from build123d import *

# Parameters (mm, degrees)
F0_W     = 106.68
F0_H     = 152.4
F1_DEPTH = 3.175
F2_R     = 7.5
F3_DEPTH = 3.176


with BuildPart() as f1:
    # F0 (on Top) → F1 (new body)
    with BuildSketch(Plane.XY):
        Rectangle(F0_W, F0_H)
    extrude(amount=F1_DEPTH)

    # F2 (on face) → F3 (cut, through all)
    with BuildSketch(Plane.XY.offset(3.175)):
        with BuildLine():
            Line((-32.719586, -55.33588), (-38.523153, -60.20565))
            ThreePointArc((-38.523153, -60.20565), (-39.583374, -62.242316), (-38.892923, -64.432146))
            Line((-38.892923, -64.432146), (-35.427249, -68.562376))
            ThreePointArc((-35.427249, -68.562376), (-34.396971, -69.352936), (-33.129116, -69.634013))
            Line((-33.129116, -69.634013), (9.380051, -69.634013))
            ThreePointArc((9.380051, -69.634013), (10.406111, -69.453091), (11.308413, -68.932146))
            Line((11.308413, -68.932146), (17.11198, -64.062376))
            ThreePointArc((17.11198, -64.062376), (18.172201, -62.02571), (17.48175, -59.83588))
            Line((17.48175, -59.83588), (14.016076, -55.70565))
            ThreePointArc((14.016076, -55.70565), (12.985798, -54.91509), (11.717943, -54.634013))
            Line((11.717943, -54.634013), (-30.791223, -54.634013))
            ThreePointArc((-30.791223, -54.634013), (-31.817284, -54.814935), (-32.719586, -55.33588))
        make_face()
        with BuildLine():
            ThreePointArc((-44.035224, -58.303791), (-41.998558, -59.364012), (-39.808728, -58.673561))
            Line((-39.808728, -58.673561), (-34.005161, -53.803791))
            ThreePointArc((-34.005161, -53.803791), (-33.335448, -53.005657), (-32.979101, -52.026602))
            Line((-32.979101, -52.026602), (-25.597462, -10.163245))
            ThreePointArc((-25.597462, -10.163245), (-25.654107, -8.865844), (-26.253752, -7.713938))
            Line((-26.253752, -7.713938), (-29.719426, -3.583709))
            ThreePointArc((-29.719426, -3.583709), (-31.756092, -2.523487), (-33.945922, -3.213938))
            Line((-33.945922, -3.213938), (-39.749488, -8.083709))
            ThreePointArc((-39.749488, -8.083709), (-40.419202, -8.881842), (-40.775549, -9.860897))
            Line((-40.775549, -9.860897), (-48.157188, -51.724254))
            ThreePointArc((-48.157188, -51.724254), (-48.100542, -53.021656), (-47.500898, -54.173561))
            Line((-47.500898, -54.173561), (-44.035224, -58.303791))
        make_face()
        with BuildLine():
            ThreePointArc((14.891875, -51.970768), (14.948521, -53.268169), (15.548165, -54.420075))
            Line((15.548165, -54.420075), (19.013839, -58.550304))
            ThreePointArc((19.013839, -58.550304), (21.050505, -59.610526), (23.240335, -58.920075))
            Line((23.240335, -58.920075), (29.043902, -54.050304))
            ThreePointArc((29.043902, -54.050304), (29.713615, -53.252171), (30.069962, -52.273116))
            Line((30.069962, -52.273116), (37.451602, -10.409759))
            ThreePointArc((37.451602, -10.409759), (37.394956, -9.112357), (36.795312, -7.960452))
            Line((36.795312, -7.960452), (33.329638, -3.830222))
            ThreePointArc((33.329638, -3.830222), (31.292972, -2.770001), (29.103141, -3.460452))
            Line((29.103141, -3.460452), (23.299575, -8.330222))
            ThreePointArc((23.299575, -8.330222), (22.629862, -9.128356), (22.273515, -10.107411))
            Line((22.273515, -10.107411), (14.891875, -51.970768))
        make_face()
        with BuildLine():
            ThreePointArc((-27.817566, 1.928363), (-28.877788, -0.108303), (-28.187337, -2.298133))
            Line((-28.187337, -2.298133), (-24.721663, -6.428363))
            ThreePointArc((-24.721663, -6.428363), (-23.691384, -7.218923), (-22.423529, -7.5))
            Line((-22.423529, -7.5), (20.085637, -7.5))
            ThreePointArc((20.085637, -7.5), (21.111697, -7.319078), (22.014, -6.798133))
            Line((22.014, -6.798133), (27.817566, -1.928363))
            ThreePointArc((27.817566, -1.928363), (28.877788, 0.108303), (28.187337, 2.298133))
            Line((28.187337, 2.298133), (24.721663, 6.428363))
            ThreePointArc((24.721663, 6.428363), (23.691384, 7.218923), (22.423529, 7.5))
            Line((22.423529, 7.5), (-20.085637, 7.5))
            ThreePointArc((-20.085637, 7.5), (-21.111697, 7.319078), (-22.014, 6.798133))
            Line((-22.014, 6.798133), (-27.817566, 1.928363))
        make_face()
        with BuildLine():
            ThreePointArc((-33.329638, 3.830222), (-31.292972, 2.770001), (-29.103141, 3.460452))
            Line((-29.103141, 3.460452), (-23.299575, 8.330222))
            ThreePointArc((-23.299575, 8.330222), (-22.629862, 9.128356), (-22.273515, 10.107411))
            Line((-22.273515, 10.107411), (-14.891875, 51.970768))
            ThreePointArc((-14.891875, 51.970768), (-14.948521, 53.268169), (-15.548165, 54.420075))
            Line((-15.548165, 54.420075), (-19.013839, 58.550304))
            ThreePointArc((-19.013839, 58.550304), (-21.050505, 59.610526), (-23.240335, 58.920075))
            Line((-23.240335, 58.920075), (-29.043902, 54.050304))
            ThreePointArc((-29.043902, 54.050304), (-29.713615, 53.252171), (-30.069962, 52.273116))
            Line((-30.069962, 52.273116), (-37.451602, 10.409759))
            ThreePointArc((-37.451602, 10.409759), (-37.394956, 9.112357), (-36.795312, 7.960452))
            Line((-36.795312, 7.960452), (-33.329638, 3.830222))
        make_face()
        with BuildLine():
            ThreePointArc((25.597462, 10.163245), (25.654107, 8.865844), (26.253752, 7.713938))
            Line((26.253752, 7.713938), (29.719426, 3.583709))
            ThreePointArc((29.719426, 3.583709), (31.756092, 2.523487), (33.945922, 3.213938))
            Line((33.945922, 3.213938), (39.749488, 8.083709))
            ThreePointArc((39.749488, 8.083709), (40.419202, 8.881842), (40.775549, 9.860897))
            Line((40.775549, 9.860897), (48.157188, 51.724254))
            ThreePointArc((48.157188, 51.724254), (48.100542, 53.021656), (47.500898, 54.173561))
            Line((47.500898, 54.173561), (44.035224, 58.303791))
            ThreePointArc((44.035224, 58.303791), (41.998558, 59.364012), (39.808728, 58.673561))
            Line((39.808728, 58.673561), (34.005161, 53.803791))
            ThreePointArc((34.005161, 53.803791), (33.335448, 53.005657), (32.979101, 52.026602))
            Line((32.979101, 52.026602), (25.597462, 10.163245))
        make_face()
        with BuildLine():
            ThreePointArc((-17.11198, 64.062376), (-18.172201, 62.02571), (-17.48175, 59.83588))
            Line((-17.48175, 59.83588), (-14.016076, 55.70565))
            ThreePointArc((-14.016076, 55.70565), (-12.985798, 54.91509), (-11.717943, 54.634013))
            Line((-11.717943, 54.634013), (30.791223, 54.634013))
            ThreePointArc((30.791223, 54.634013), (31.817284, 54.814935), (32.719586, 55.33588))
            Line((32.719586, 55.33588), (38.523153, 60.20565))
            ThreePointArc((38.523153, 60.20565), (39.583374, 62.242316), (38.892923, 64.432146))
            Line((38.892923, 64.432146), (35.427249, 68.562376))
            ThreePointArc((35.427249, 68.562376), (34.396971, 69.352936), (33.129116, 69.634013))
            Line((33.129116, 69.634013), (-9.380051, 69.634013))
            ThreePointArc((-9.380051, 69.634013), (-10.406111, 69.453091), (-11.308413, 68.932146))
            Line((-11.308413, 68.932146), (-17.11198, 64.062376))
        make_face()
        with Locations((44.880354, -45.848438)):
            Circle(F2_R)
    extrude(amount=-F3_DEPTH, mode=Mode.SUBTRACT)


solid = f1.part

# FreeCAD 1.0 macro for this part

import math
import FreeCAD as App
import Part
import Sketcher

V = App.Vector
Q = App.Units.Quantity


def add_polygon(sketch, points):
    """Adds a closed chain of lines whose ends are joined by coincident constraints."""
    first, n = sketch.GeometryCount, len(points)
    for a, b in zip(points, points[1:] + points[:1]):
        sketch.addGeometry(Part.LineSegment(App.Vector(*a, 0), App.Vector(*b, 0)), False)
    for i in range(n):
        sketch.addConstraint(Sketcher.Constraint("Coincident", first + i, 2, first + (i + 1) % n, 1))

doc = App.newDocument("Part")
params = doc.addObject("Spreadsheet::Sheet", "Params")
for row, (alias, value) in enumerate([
    ("sketch1_height", "152.4 mm"),
    ("sketch1_width", "106.68 mm"),
    ("pad1_length", "3.175 mm"),
    ("sketch2_diameter", "15 mm"),
    ("sketch2_radius", "3 mm"),
], start=1):
    params.set(f"A{row}", alias)
    params.set(f"B{row}", "=" + value)
    params.setAlias(f"B{row}", alias)

body = doc.addObject("PartDesign::Body", "Body")

sketch1 = body.newObject("Sketcher::SketchObject", "Sketch")
sketch1.AttachmentSupport = (doc.getObject("XY_Plane"), [""])
sketch1.MapMode = "FlatFace"
add_polygon(sketch1, [(-53, 76), (-53, -76), (53, -76), (53, 76)])
sketch1.addConstraint(Sketcher.Constraint("Vertical", 0))
sketch1.addConstraint(Sketcher.Constraint("Horizontal", 1))
sketch1.addConstraint(Sketcher.Constraint("Vertical", 2))
sketch1.addConstraint(Sketcher.Constraint("Horizontal", 3))
sketch1.addConstraint(Sketcher.Constraint("Symmetric", 0, 2, 2, 2, -1, 1))
sketch1.addConstraint(Sketcher.Constraint("DistanceY", 0, 2, 0, 1, 152.4))
sketch1.addConstraint(Sketcher.Constraint("DistanceX", 1, 1, 1, 2, 106.68))
sketch1.setExpression("Constraints[9]", "Params.sketch1_height")
sketch1.setExpression("Constraints[10]", "Params.sketch1_width")
pad1 = body.newObject("PartDesign::Pad", "Pad")
pad1.Profile = sketch1
pad1.setExpression("Length", "Params.pad1_length")

sketch2 = body.newObject("Sketcher::SketchObject", "Sketch001")
sketch2.AttachmentSupport = (doc.getObject("XY_Plane"), [""])
sketch2.MapMode = "FlatFace"
sketch2.AttachmentOffset = App.Placement(V(0, 0, 3.175), App.Rotation())
sketch2.addGeometry(Part.LineSegment(V(-32.7, -55.3, 0), V(-38.5, -60.2, 0)), False)
sketch2.addGeometry(Part.ArcOfCircle(Part.Circle(V(-36.6, -62.5, 0), V(0, 0, 1), 3), math.radians(130), math.radians(220)), False)
sketch2.addGeometry(Part.LineSegment(V(-38.9, -64.4, 0), V(-35.4, -68.6, 0)), False)
sketch2.addGeometry(Part.ArcOfCircle(Part.Circle(V(-33.1, -66.6, 0), V(0, 0, 1), 3), math.radians(-140), math.radians(-90)), False)
sketch2.addGeometry(Part.LineSegment(V(-33.1, -69.6, 0), V(9.4, -69.6, 0)), False)
sketch2.addGeometry(Part.ArcOfCircle(Part.Circle(V(9.4, -66.6, 0), V(0, 0, 1), 3), math.radians(-90), math.radians(-50)), False)
sketch2.addGeometry(Part.LineSegment(V(11.3, -68.9, 0), V(17.1, -64.1, 0)), False)
sketch2.addGeometry(Part.ArcOfCircle(Part.Circle(V(15.2, -61.8, 0), V(0, 0, 1), 3), math.radians(-50), math.radians(40)), False)
sketch2.addGeometry(Part.LineSegment(V(17.5, -59.8, 0), V(14, -55.7, 0)), False)
sketch2.addGeometry(Part.ArcOfCircle(Part.Circle(V(11.7, -57.6, 0), V(0, 0, 1), 3), math.radians(40), math.radians(90)), False)
sketch2.addGeometry(Part.LineSegment(V(11.7, -54.6, 0), V(-30.8, -54.6, 0)), False)
sketch2.addGeometry(Part.ArcOfCircle(Part.Circle(V(-30.8, -57.6, 0), V(0, 0, 1), 3), math.radians(90), math.radians(130)), False)
sketch2.addGeometry(Part.ArcOfCircle(Part.Circle(V(-41.7, -56.4, 0), V(0, 0, 1), 3), math.radians(-140), math.radians(-50)), False)
sketch2.addGeometry(Part.LineSegment(V(-39.8, -58.7, 0), V(-34, -53.8, 0)), False)
sketch2.addGeometry(Part.ArcOfCircle(Part.Circle(V(-35.9, -51.5, 0), V(0, 0, 1), 3), math.radians(-50), math.radians(-10)), False)
sketch2.addGeometry(Part.LineSegment(V(-33, -52, 0), V(-25.6, -10.2, 0)), False)
sketch2.addGeometry(Part.ArcOfCircle(Part.Circle(V(-28.6, -9.6, 0), V(0, 0, 1), 3), math.radians(-10), math.radians(40)), False)
sketch2.addGeometry(Part.LineSegment(V(-26.3, -7.7, 0), V(-29.7, -3.6, 0)), False)
sketch2.addGeometry(Part.ArcOfCircle(Part.Circle(V(-32, -5.5, 0), V(0, 0, 1), 3), math.radians(40), math.radians(130)), False)
sketch2.addGeometry(Part.LineSegment(V(-33.9, -3.2, 0), V(-39.7, -8.1, 0)), False)
sketch2.addGeometry(Part.ArcOfCircle(Part.Circle(V(-37.8, -10.4, 0), V(0, 0, 1), 3), math.radians(130), math.radians(170)), False)
sketch2.addGeometry(Part.LineSegment(V(-40.8, -9.9, 0), V(-48.2, -51.7, 0)), False)
sketch2.addGeometry(Part.ArcOfCircle(Part.Circle(V(-45.2, -52.2, 0), V(0, 0, 1), 3), math.radians(170), math.radians(220)), False)
sketch2.addGeometry(Part.LineSegment(V(-47.5, -54.2, 0), V(-44, -58.3, 0)), False)
sketch2.addGeometry(Part.ArcOfCircle(Part.Circle(V(17.8, -52.5, 0), V(0, 0, 1), 3), math.radians(170), math.radians(220)), False)
sketch2.addGeometry(Part.LineSegment(V(15.5, -54.4, 0), V(19, -58.6, 0)), False)
sketch2.addGeometry(Part.ArcOfCircle(Part.Circle(V(21.3, -56.6, 0), V(0, 0, 1), 3), math.radians(-140), math.radians(-50)), False)
sketch2.addGeometry(Part.LineSegment(V(23.2, -58.9, 0), V(29, -54.1, 0)), False)
sketch2.addGeometry(Part.ArcOfCircle(Part.Circle(V(27.1, -51.8, 0), V(0, 0, 1), 3), math.radians(-50), math.radians(-10)), False)
sketch2.addGeometry(Part.LineSegment(V(30.1, -52.3, 0), V(37.5, -10.4, 0)), False)
sketch2.addGeometry(Part.ArcOfCircle(Part.Circle(V(34.5, -9.9, 0), V(0, 0, 1), 3), math.radians(-10), math.radians(40)), False)
sketch2.addGeometry(Part.LineSegment(V(36.8, -8, 0), V(33.3, -3.8, 0)), False)
sketch2.addGeometry(Part.ArcOfCircle(Part.Circle(V(31, -5.8, 0), V(0, 0, 1), 3), math.radians(40), math.radians(130)), False)
sketch2.addGeometry(Part.LineSegment(V(29.1, -3.5, 0), V(23.3, -8.3, 0)), False)
sketch2.addGeometry(Part.ArcOfCircle(Part.Circle(V(25.2, -10.6, 0), V(0, 0, 1), 3), math.radians(130), math.radians(170)), False)
sketch2.addGeometry(Part.LineSegment(V(22.3, -10.1, 0), V(14.9, -52, 0)), False)
sketch2.addGeometry(Part.ArcOfCircle(Part.Circle(V(-25.9, -0.4, 0), V(0, 0, 1), 3), math.radians(130), math.radians(220)), False)
sketch2.addGeometry(Part.LineSegment(V(-28.2, -2.3, 0), V(-24.7, -6.4, 0)), False)
sketch2.addGeometry(Part.ArcOfCircle(Part.Circle(V(-22.4, -4.5, 0), V(0, 0, 1), 3), math.radians(-140), math.radians(-90)), False)
sketch2.addGeometry(Part.LineSegment(V(-22.4, -7.5, 0), V(20.1, -7.5, 0)), False)
sketch2.addGeometry(Part.ArcOfCircle(Part.Circle(V(20.1, -4.5, 0), V(0, 0, 1), 3), math.radians(-90), math.radians(-50)), False)
sketch2.addGeometry(Part.LineSegment(V(22, -6.8, 0), V(27.8, -1.9, 0)), False)
sketch2.addGeometry(Part.ArcOfCircle(Part.Circle(V(25.9, 0.4, 0), V(0, 0, 1), 3), math.radians(-50), math.radians(40)), False)
sketch2.addGeometry(Part.LineSegment(V(28.2, 2.3, 0), V(24.7, 6.4, 0)), False)
sketch2.addGeometry(Part.ArcOfCircle(Part.Circle(V(22.4, 4.5, 0), V(0, 0, 1), 3), math.radians(40), math.radians(90)), False)
sketch2.addGeometry(Part.LineSegment(V(22.4, 7.5, 0), V(-20.1, 7.5, 0)), False)
sketch2.addGeometry(Part.ArcOfCircle(Part.Circle(V(-20.1, 4.5, 0), V(0, 0, 1), 3), math.radians(90), math.radians(130)), False)
sketch2.addGeometry(Part.LineSegment(V(-22, 6.8, 0), V(-27.8, 1.9, 0)), False)
sketch2.addGeometry(Part.ArcOfCircle(Part.Circle(V(-31, 5.8, 0), V(0, 0, 1), 3), math.radians(-140), math.radians(-50)), False)
sketch2.addGeometry(Part.LineSegment(V(-29.1, 3.5, 0), V(-23.3, 8.3, 0)), False)
sketch2.addGeometry(Part.ArcOfCircle(Part.Circle(V(-25.2, 10.6, 0), V(0, 0, 1), 3), math.radians(-50), math.radians(-10)), False)
sketch2.addGeometry(Part.LineSegment(V(-22.3, 10.1, 0), V(-14.9, 52, 0)), False)
sketch2.addGeometry(Part.ArcOfCircle(Part.Circle(V(-17.8, 52.5, 0), V(0, 0, 1), 3), math.radians(-10), math.radians(40)), False)
sketch2.addGeometry(Part.LineSegment(V(-15.5, 54.4, 0), V(-19, 58.6, 0)), False)
sketch2.addGeometry(Part.ArcOfCircle(Part.Circle(V(-21.3, 56.6, 0), V(0, 0, 1), 3), math.radians(40), math.radians(130)), False)
sketch2.addGeometry(Part.LineSegment(V(-23.2, 58.9, 0), V(-29, 54.1, 0)), False)
sketch2.addGeometry(Part.ArcOfCircle(Part.Circle(V(-27.1, 51.8, 0), V(0, 0, 1), 3), math.radians(130), math.radians(170)), False)
sketch2.addGeometry(Part.LineSegment(V(-30.1, 52.3, 0), V(-37.5, 10.4, 0)), False)
sketch2.addGeometry(Part.ArcOfCircle(Part.Circle(V(-34.5, 9.9, 0), V(0, 0, 1), 3), math.radians(170), math.radians(220)), False)
sketch2.addGeometry(Part.LineSegment(V(-36.8, 8, 0), V(-33.3, 3.8, 0)), False)
sketch2.addGeometry(Part.ArcOfCircle(Part.Circle(V(28.6, 9.6, 0), V(0, 0, 1), 3), math.radians(170), math.radians(220)), False)
sketch2.addGeometry(Part.LineSegment(V(26.3, 7.7, 0), V(29.7, 3.6, 0)), False)
sketch2.addGeometry(Part.ArcOfCircle(Part.Circle(V(32, 5.5, 0), V(0, 0, 1), 3), math.radians(-140), math.radians(-50)), False)
sketch2.addGeometry(Part.LineSegment(V(33.9, 3.2, 0), V(39.7, 8.1, 0)), False)
sketch2.addGeometry(Part.ArcOfCircle(Part.Circle(V(37.8, 10.4, 0), V(0, 0, 1), 3), math.radians(-50), math.radians(-10)), False)
sketch2.addGeometry(Part.LineSegment(V(40.8, 9.9, 0), V(48.2, 51.7, 0)), False)
sketch2.addGeometry(Part.ArcOfCircle(Part.Circle(V(45.2, 52.2, 0), V(0, 0, 1), 3), math.radians(-10), math.radians(40)), False)
sketch2.addGeometry(Part.LineSegment(V(47.5, 54.2, 0), V(44, 58.3, 0)), False)
sketch2.addGeometry(Part.ArcOfCircle(Part.Circle(V(41.7, 56.4, 0), V(0, 0, 1), 3), math.radians(40), math.radians(130)), False)
sketch2.addGeometry(Part.LineSegment(V(39.8, 58.7, 0), V(34, 53.8, 0)), False)
sketch2.addGeometry(Part.ArcOfCircle(Part.Circle(V(35.9, 51.5, 0), V(0, 0, 1), 3), math.radians(130), math.radians(170)), False)
sketch2.addGeometry(Part.LineSegment(V(33, 52, 0), V(25.6, 10.2, 0)), False)
sketch2.addGeometry(Part.ArcOfCircle(Part.Circle(V(-15.2, 61.8, 0), V(0, 0, 1), 3), math.radians(130), math.radians(220)), False)
sketch2.addGeometry(Part.LineSegment(V(-17.5, 59.8, 0), V(-14, 55.7, 0)), False)
sketch2.addGeometry(Part.ArcOfCircle(Part.Circle(V(-11.7, 57.6, 0), V(0, 0, 1), 3), math.radians(-140), math.radians(-90)), False)
sketch2.addGeometry(Part.LineSegment(V(-11.7, 54.6, 0), V(30.8, 54.6, 0)), False)
sketch2.addGeometry(Part.ArcOfCircle(Part.Circle(V(30.8, 57.6, 0), V(0, 0, 1), 3), math.radians(-90), math.radians(-50)), False)
sketch2.addGeometry(Part.LineSegment(V(32.7, 55.3, 0), V(38.5, 60.2, 0)), False)
sketch2.addGeometry(Part.ArcOfCircle(Part.Circle(V(36.6, 62.5, 0), V(0, 0, 1), 3), math.radians(-50), math.radians(40)), False)
sketch2.addGeometry(Part.LineSegment(V(38.9, 64.4, 0), V(35.4, 68.6, 0)), False)
sketch2.addGeometry(Part.ArcOfCircle(Part.Circle(V(33.1, 66.6, 0), V(0, 0, 1), 3), math.radians(40), math.radians(90)), False)
sketch2.addGeometry(Part.LineSegment(V(33.1, 69.6, 0), V(-9.4, 69.6, 0)), False)
sketch2.addGeometry(Part.ArcOfCircle(Part.Circle(V(-9.4, 66.6, 0), V(0, 0, 1), 3), math.radians(90), math.radians(130)), False)
sketch2.addGeometry(Part.LineSegment(V(-11.3, 68.9, 0), V(-17.1, 64.1, 0)), False)
sketch2.addGeometry(Part.Circle(V(44.9, -45.8, 0), V(0, 0, 1), 7.5), False)
sketch2.addConstraint(Sketcher.Constraint("Tangent", 0, 2, 1, 1))
sketch2.addConstraint(Sketcher.Constraint("Tangent", 1, 2, 2, 1))
sketch2.addConstraint(Sketcher.Constraint("Tangent", 2, 2, 3, 1))
sketch2.addConstraint(Sketcher.Constraint("Tangent", 3, 2, 4, 1))
sketch2.addConstraint(Sketcher.Constraint("Tangent", 4, 2, 5, 1))
sketch2.addConstraint(Sketcher.Constraint("Tangent", 5, 2, 6, 1))
sketch2.addConstraint(Sketcher.Constraint("Tangent", 6, 2, 7, 1))
sketch2.addConstraint(Sketcher.Constraint("Tangent", 7, 2, 8, 1))
sketch2.addConstraint(Sketcher.Constraint("Tangent", 8, 2, 9, 1))
sketch2.addConstraint(Sketcher.Constraint("Tangent", 9, 2, 10, 1))
sketch2.addConstraint(Sketcher.Constraint("Tangent", 10, 2, 11, 1))
sketch2.addConstraint(Sketcher.Constraint("Tangent", 11, 2, 0, 1))
sketch2.addConstraint(Sketcher.Constraint("Tangent", 12, 2, 13, 1))
sketch2.addConstraint(Sketcher.Constraint("Tangent", 13, 2, 14, 1))
sketch2.addConstraint(Sketcher.Constraint("Tangent", 14, 2, 15, 1))
sketch2.addConstraint(Sketcher.Constraint("Tangent", 15, 2, 16, 1))
sketch2.addConstraint(Sketcher.Constraint("Tangent", 16, 2, 17, 1))
sketch2.addConstraint(Sketcher.Constraint("Tangent", 17, 2, 18, 1))
sketch2.addConstraint(Sketcher.Constraint("Tangent", 18, 2, 19, 1))
sketch2.addConstraint(Sketcher.Constraint("Tangent", 19, 2, 20, 1))
sketch2.addConstraint(Sketcher.Constraint("Tangent", 20, 2, 21, 1))
sketch2.addConstraint(Sketcher.Constraint("Tangent", 21, 2, 22, 1))
sketch2.addConstraint(Sketcher.Constraint("Tangent", 22, 2, 23, 1))
sketch2.addConstraint(Sketcher.Constraint("Tangent", 23, 2, 12, 1))
sketch2.addConstraint(Sketcher.Constraint("Tangent", 24, 2, 25, 1))
sketch2.addConstraint(Sketcher.Constraint("Tangent", 25, 2, 26, 1))
sketch2.addConstraint(Sketcher.Constraint("Tangent", 26, 2, 27, 1))
sketch2.addConstraint(Sketcher.Constraint("Tangent", 27, 2, 28, 1))
sketch2.addConstraint(Sketcher.Constraint("Tangent", 28, 2, 29, 1))
sketch2.addConstraint(Sketcher.Constraint("Tangent", 29, 2, 30, 1))
sketch2.addConstraint(Sketcher.Constraint("Tangent", 30, 2, 31, 1))
sketch2.addConstraint(Sketcher.Constraint("Tangent", 31, 2, 32, 1))
sketch2.addConstraint(Sketcher.Constraint("Tangent", 32, 2, 33, 1))
sketch2.addConstraint(Sketcher.Constraint("Tangent", 33, 2, 34, 1))
sketch2.addConstraint(Sketcher.Constraint("Tangent", 34, 2, 35, 1))
sketch2.addConstraint(Sketcher.Constraint("Tangent", 35, 2, 24, 1))
sketch2.addConstraint(Sketcher.Constraint("Tangent", 36, 2, 37, 1))
sketch2.addConstraint(Sketcher.Constraint("Tangent", 37, 2, 38, 1))
sketch2.addConstraint(Sketcher.Constraint("Tangent", 38, 2, 39, 1))
sketch2.addConstraint(Sketcher.Constraint("Tangent", 39, 2, 40, 1))
sketch2.addConstraint(Sketcher.Constraint("Tangent", 40, 2, 41, 1))
sketch2.addConstraint(Sketcher.Constraint("Tangent", 41, 2, 42, 1))
sketch2.addConstraint(Sketcher.Constraint("Tangent", 42, 2, 43, 1))
sketch2.addConstraint(Sketcher.Constraint("Tangent", 43, 2, 44, 1))
sketch2.addConstraint(Sketcher.Constraint("Tangent", 44, 2, 45, 1))
sketch2.addConstraint(Sketcher.Constraint("Tangent", 45, 2, 46, 1))
sketch2.addConstraint(Sketcher.Constraint("Tangent", 46, 2, 47, 1))
sketch2.addConstraint(Sketcher.Constraint("Tangent", 47, 2, 36, 1))
sketch2.addConstraint(Sketcher.Constraint("Tangent", 48, 2, 49, 1))
sketch2.addConstraint(Sketcher.Constraint("Tangent", 49, 2, 50, 1))
sketch2.addConstraint(Sketcher.Constraint("Tangent", 50, 2, 51, 1))
sketch2.addConstraint(Sketcher.Constraint("Tangent", 51, 2, 52, 1))
sketch2.addConstraint(Sketcher.Constraint("Tangent", 52, 2, 53, 1))
sketch2.addConstraint(Sketcher.Constraint("Tangent", 53, 2, 54, 1))
sketch2.addConstraint(Sketcher.Constraint("Tangent", 54, 2, 55, 1))
sketch2.addConstraint(Sketcher.Constraint("Tangent", 55, 2, 56, 1))
sketch2.addConstraint(Sketcher.Constraint("Tangent", 56, 2, 57, 1))
sketch2.addConstraint(Sketcher.Constraint("Tangent", 57, 2, 58, 1))
sketch2.addConstraint(Sketcher.Constraint("Tangent", 58, 2, 59, 1))
sketch2.addConstraint(Sketcher.Constraint("Tangent", 59, 2, 48, 1))
sketch2.addConstraint(Sketcher.Constraint("Tangent", 60, 2, 61, 1))
sketch2.addConstraint(Sketcher.Constraint("Tangent", 61, 2, 62, 1))
sketch2.addConstraint(Sketcher.Constraint("Tangent", 62, 2, 63, 1))
sketch2.addConstraint(Sketcher.Constraint("Tangent", 63, 2, 64, 1))
sketch2.addConstraint(Sketcher.Constraint("Tangent", 64, 2, 65, 1))
sketch2.addConstraint(Sketcher.Constraint("Tangent", 65, 2, 66, 1))
sketch2.addConstraint(Sketcher.Constraint("Tangent", 66, 2, 67, 1))
sketch2.addConstraint(Sketcher.Constraint("Tangent", 67, 2, 68, 1))
sketch2.addConstraint(Sketcher.Constraint("Tangent", 68, 2, 69, 1))
sketch2.addConstraint(Sketcher.Constraint("Tangent", 69, 2, 70, 1))
sketch2.addConstraint(Sketcher.Constraint("Tangent", 70, 2, 71, 1))
sketch2.addConstraint(Sketcher.Constraint("Tangent", 71, 2, 60, 1))
sketch2.addConstraint(Sketcher.Constraint("Tangent", 72, 2, 73, 1))
sketch2.addConstraint(Sketcher.Constraint("Tangent", 73, 2, 74, 1))
sketch2.addConstraint(Sketcher.Constraint("Tangent", 74, 2, 75, 1))
sketch2.addConstraint(Sketcher.Constraint("Tangent", 75, 2, 76, 1))
sketch2.addConstraint(Sketcher.Constraint("Tangent", 76, 2, 77, 1))
sketch2.addConstraint(Sketcher.Constraint("Tangent", 77, 2, 78, 1))
sketch2.addConstraint(Sketcher.Constraint("Tangent", 78, 2, 79, 1))
sketch2.addConstraint(Sketcher.Constraint("Tangent", 79, 2, 80, 1))
sketch2.addConstraint(Sketcher.Constraint("Tangent", 80, 2, 81, 1))
sketch2.addConstraint(Sketcher.Constraint("Tangent", 81, 2, 82, 1))
sketch2.addConstraint(Sketcher.Constraint("Tangent", 82, 2, 83, 1))
sketch2.addConstraint(Sketcher.Constraint("Tangent", 83, 2, 72, 1))
sketch2.addConstraint(Sketcher.Constraint("Horizontal", 4))
sketch2.addConstraint(Sketcher.Constraint("Horizontal", 10))
sketch2.addConstraint(Sketcher.Constraint("Horizontal", 39))
sketch2.addConstraint(Sketcher.Constraint("Horizontal", 45))
sketch2.addConstraint(Sketcher.Constraint("Horizontal", 75))
sketch2.addConstraint(Sketcher.Constraint("Horizontal", 81))
sketch2.addConstraint(Sketcher.Constraint("Equal", 1, 3))
sketch2.addConstraint(Sketcher.Constraint("Equal", 3, 7))
sketch2.addConstraint(Sketcher.Constraint("Equal", 7, 9))
sketch2.addConstraint(Sketcher.Constraint("Equal", 5, 11))
sketch2.addConstraint(Sketcher.Constraint("Equal", 9, 12))
sketch2.addConstraint(Sketcher.Constraint("Equal", 11, 16))
sketch2.addConstraint(Sketcher.Constraint("Equal", 12, 18))
sketch2.addConstraint(Sketcher.Constraint("Equal", 11, 20))
sketch2.addConstraint(Sketcher.Constraint("Equal", 18, 22))
sketch2.addConstraint(Sketcher.Constraint("Equal", 9, 24))
sketch2.addConstraint(Sketcher.Constraint("Equal", 22, 26))
sketch2.addConstraint(Sketcher.Constraint("Equal", 26, 28))
sketch2.addConstraint(Sketcher.Constraint("Equal", 28, 30))
sketch2.addConstraint(Sketcher.Constraint("Equal", 30, 32))
sketch2.addConstraint(Sketcher.Constraint("Equal", 14, 34))
sketch2.addConstraint(Sketcher.Constraint("Equal", 30, 36))
sketch2.addConstraint(Sketcher.Constraint("Equal", 34, 38))
sketch2.addConstraint(Sketcher.Constraint("Equal", 36, 40))
sketch2.addConstraint(Sketcher.Constraint("Equal", 40, 42))
sketch2.addConstraint(Sketcher.Constraint("Equal", 38, 44))
sketch2.addConstraint(Sketcher.Constraint("Equal", 42, 46))
sketch2.addConstraint(Sketcher.Constraint("Equal", 46, 48))
sketch2.addConstraint(Sketcher.Constraint("Equal", 44, 50))
sketch2.addConstraint(Sketcher.Constraint("Equal", 48, 52))
sketch2.addConstraint(Sketcher.Constraint("Equal", 46, 54))
sketch2.addConstraint(Sketcher.Constraint("Equal", 54, 56))
sketch2.addConstraint(Sketcher.Constraint("Equal", 56, 58))
sketch2.addConstraint(Sketcher.Constraint("Equal", 16, 60))
sketch2.addConstraint(Sketcher.Constraint("Equal", 58, 62))
sketch2.addConstraint(Sketcher.Constraint("Equal", 20, 64))
sketch2.addConstraint(Sketcher.Constraint("Equal", 62, 66))
sketch2.addConstraint(Sketcher.Constraint("Equal", 66, 68))
sketch2.addConstraint(Sketcher.Constraint("Equal", 50, 70))
sketch2.addConstraint(Sketcher.Constraint("Equal", 68, 72))
sketch2.addConstraint(Sketcher.Constraint("Equal", 72, 74))
sketch2.addConstraint(Sketcher.Constraint("Equal", 64, 76))
sketch2.addConstraint(Sketcher.Constraint("Equal", 74, 78))
sketch2.addConstraint(Sketcher.Constraint("Equal", 78, 80))
sketch2.addConstraint(Sketcher.Constraint("Equal", 76, 82))
sketch2.addConstraint(Sketcher.Constraint("Symmetric", 36, 3, 42, 3, -1, 1))
sketch2.addConstraint(Sketcher.Constraint("Symmetric", 38, 3, 44, 3, -1, 1))
sketch2.addConstraint(Sketcher.Constraint("Symmetric", 32, 3, 48, 3, -1, 1))
sketch2.addConstraint(Sketcher.Constraint("Symmetric", 34, 3, 50, 3, -1, 1))
sketch2.addConstraint(Sketcher.Constraint("Symmetric", 24, 3, 52, 3, -1, 1))
sketch2.addConstraint(Sketcher.Constraint("Symmetric", 26, 3, 54, 3, -1, 1))
sketch2.addConstraint(Sketcher.Constraint("Symmetric", 28, 3, 56, 3, -1, 1))
sketch2.addConstraint(Sketcher.Constraint("Symmetric", 30, 3, 58, 3, -1, 1))
sketch2.addConstraint(Sketcher.Constraint("Symmetric", 16, 3, 60, 3, -1, 1))
sketch2.addConstraint(Sketcher.Constraint("Symmetric", 18, 3, 62, 3, -1, 1))
sketch2.addConstraint(Sketcher.Constraint("Symmetric", 20, 3, 64, 3, -1, 1))
sketch2.addConstraint(Sketcher.Constraint("Symmetric", 22, 3, 66, 3, -1, 1))
sketch2.addConstraint(Sketcher.Constraint("Symmetric", 12, 3, 68, 3, -1, 1))
sketch2.addConstraint(Sketcher.Constraint("Symmetric", 14, 3, 70, 3, -1, 1))
sketch2.addConstraint(Sketcher.Constraint("Symmetric", 7, 3, 72, 3, -1, 1))
sketch2.addConstraint(Sketcher.Constraint("Symmetric", 9, 3, 74, 3, -1, 1))
sketch2.addConstraint(Sketcher.Constraint("Symmetric", 1, 3, 78, 3, -1, 1))
sketch2.addConstraint(Sketcher.Constraint("Symmetric", 3, 3, 80, 3, -1, 1))
sketch2.addConstraint(Sketcher.Constraint("Perpendicular", 0, 2))
sketch2.addConstraint(Sketcher.Constraint("Perpendicular", 2, 6))
sketch2.addConstraint(Sketcher.Constraint("Perpendicular", 6, 8))
sketch2.addConstraint(Sketcher.Constraint("Perpendicular", 8, 13))
sketch2.addConstraint(Sketcher.Constraint("Perpendicular", 13, 17))
sketch2.addConstraint(Sketcher.Constraint("Perpendicular", 17, 19))
sketch2.addConstraint(Sketcher.Constraint("Parallel", 15, 21))
sketch2.addConstraint(Sketcher.Constraint("Perpendicular", 19, 23))
sketch2.addConstraint(Sketcher.Constraint("Parallel", 23, 25))
sketch2.addConstraint(Sketcher.Constraint("Perpendicular", 25, 27))
sketch2.addConstraint(Sketcher.Constraint("Parallel", 21, 29))
sketch2.addConstraint(Sketcher.Constraint("Perpendicular", 27, 31))
sketch2.addConstraint(Sketcher.Constraint("Perpendicular", 31, 33))
sketch2.addConstraint(Sketcher.Constraint("Parallel", 29, 35))
sketch2.addConstraint(Sketcher.Constraint("Perpendicular", 33, 37))
sketch2.addConstraint(Sketcher.Constraint("Perpendicular", 37, 41))
sketch2.addConstraint(Sketcher.Constraint("Perpendicular", 43, 47))
sketch2.addConstraint(Sketcher.Constraint("Perpendicular", 73, 77))
sketch2.addConstraint(Sketcher.Constraint("Perpendicular", 79, 83))
sketch2.addConstraint(Sketcher.Constraint("Equal", 4, 10))
sketch2.addConstraint(Sketcher.Constraint("Equal", 10, 39))
sketch2.addConstraint(Sketcher.Constraint("Equal", 6, 13))
sketch2.addConstraint(Sketcher.Constraint("Equal", 8, 17))
sketch2.addConstraint(Sketcher.Constraint("Equal", 13, 19))
sketch2.addConstraint(Sketcher.Constraint("Equal", 15, 21))
sketch2.addConstraint(Sketcher.Constraint("Equal", 17, 23))
sketch2.addConstraint(Sketcher.Constraint("Equal", 23, 25))
sketch2.addConstraint(Sketcher.Constraint("Equal", 19, 27))
sketch2.addConstraint(Sketcher.Constraint("Equal", 21, 29))
sketch2.addConstraint(Sketcher.Constraint("Equal", 25, 31))
sketch2.addConstraint(Sketcher.Constraint("Equal", 31, 37))
sketch2.addConstraint(Sketcher.Constraint("Equal", 33, 41))
sketch2.addConstraint(Sketcher.Constraint("Diameter", 84, 15.0))
sketch2.addConstraint(Sketcher.Constraint("Radius", 1, 3.0))
sketch2.addConstraint(Sketcher.Constraint("Angle", 0, Q("-140.000005 deg")))
sketch2.addConstraint(Sketcher.Constraint("Angle", 15, Q("80 deg")))
sketch2.addConstraint(Sketcher.Constraint("DistanceY", 40, 3, -1, 1, 4.500001))
sketch2.addConstraint(Sketcher.Constraint("DistanceX", -1, 1, 40, 2, 22.014))
sketch2.addConstraint(Sketcher.Constraint("DistanceY", 16, 3, -1, 1, 9.642299))
sketch2.addConstraint(Sketcher.Constraint("DistanceY", 22, 3, -1, 1, 52.245198))
sketch2.addConstraint(Sketcher.Constraint("DistanceX", -1, 1, 24, 3, 17.846301))
sketch2.addConstraint(Sketcher.Constraint("DistanceX", 14, 2, -1, 1, 32.979101))
sketch2.addConstraint(Sketcher.Constraint("DistanceY", 14, 2, -1, 1, 52.026602))
sketch2.addConstraint(Sketcher.Constraint("DistanceX", 1, 3, -1, 1, 36.59479))
sketch2.addConstraint(Sketcher.Constraint("DistanceY", 3, 3, -1, 1, 66.634011))
sketch2.addConstraint(Sketcher.Constraint("DistanceY", 24, 3, -1, 1, 52.491712))
sketch2.addConstraint(Sketcher.Constraint("DistanceY", 84, 3, -1, 1, 45.848438))
sketch2.addConstraint(Sketcher.Constraint("DistanceX", -1, 1, 84, 3, 44.880354))
sketch2.setExpression("Constraints[179]", "Params.sketch2_diameter")
sketch2.setExpression("Constraints[180]", "Params.sketch2_radius")
pocket1 = body.newObject("PartDesign::Pocket", "Pocket")
pocket1.Profile = sketch2
pocket1.Type = "ThroughAll"

doc.recompute()
